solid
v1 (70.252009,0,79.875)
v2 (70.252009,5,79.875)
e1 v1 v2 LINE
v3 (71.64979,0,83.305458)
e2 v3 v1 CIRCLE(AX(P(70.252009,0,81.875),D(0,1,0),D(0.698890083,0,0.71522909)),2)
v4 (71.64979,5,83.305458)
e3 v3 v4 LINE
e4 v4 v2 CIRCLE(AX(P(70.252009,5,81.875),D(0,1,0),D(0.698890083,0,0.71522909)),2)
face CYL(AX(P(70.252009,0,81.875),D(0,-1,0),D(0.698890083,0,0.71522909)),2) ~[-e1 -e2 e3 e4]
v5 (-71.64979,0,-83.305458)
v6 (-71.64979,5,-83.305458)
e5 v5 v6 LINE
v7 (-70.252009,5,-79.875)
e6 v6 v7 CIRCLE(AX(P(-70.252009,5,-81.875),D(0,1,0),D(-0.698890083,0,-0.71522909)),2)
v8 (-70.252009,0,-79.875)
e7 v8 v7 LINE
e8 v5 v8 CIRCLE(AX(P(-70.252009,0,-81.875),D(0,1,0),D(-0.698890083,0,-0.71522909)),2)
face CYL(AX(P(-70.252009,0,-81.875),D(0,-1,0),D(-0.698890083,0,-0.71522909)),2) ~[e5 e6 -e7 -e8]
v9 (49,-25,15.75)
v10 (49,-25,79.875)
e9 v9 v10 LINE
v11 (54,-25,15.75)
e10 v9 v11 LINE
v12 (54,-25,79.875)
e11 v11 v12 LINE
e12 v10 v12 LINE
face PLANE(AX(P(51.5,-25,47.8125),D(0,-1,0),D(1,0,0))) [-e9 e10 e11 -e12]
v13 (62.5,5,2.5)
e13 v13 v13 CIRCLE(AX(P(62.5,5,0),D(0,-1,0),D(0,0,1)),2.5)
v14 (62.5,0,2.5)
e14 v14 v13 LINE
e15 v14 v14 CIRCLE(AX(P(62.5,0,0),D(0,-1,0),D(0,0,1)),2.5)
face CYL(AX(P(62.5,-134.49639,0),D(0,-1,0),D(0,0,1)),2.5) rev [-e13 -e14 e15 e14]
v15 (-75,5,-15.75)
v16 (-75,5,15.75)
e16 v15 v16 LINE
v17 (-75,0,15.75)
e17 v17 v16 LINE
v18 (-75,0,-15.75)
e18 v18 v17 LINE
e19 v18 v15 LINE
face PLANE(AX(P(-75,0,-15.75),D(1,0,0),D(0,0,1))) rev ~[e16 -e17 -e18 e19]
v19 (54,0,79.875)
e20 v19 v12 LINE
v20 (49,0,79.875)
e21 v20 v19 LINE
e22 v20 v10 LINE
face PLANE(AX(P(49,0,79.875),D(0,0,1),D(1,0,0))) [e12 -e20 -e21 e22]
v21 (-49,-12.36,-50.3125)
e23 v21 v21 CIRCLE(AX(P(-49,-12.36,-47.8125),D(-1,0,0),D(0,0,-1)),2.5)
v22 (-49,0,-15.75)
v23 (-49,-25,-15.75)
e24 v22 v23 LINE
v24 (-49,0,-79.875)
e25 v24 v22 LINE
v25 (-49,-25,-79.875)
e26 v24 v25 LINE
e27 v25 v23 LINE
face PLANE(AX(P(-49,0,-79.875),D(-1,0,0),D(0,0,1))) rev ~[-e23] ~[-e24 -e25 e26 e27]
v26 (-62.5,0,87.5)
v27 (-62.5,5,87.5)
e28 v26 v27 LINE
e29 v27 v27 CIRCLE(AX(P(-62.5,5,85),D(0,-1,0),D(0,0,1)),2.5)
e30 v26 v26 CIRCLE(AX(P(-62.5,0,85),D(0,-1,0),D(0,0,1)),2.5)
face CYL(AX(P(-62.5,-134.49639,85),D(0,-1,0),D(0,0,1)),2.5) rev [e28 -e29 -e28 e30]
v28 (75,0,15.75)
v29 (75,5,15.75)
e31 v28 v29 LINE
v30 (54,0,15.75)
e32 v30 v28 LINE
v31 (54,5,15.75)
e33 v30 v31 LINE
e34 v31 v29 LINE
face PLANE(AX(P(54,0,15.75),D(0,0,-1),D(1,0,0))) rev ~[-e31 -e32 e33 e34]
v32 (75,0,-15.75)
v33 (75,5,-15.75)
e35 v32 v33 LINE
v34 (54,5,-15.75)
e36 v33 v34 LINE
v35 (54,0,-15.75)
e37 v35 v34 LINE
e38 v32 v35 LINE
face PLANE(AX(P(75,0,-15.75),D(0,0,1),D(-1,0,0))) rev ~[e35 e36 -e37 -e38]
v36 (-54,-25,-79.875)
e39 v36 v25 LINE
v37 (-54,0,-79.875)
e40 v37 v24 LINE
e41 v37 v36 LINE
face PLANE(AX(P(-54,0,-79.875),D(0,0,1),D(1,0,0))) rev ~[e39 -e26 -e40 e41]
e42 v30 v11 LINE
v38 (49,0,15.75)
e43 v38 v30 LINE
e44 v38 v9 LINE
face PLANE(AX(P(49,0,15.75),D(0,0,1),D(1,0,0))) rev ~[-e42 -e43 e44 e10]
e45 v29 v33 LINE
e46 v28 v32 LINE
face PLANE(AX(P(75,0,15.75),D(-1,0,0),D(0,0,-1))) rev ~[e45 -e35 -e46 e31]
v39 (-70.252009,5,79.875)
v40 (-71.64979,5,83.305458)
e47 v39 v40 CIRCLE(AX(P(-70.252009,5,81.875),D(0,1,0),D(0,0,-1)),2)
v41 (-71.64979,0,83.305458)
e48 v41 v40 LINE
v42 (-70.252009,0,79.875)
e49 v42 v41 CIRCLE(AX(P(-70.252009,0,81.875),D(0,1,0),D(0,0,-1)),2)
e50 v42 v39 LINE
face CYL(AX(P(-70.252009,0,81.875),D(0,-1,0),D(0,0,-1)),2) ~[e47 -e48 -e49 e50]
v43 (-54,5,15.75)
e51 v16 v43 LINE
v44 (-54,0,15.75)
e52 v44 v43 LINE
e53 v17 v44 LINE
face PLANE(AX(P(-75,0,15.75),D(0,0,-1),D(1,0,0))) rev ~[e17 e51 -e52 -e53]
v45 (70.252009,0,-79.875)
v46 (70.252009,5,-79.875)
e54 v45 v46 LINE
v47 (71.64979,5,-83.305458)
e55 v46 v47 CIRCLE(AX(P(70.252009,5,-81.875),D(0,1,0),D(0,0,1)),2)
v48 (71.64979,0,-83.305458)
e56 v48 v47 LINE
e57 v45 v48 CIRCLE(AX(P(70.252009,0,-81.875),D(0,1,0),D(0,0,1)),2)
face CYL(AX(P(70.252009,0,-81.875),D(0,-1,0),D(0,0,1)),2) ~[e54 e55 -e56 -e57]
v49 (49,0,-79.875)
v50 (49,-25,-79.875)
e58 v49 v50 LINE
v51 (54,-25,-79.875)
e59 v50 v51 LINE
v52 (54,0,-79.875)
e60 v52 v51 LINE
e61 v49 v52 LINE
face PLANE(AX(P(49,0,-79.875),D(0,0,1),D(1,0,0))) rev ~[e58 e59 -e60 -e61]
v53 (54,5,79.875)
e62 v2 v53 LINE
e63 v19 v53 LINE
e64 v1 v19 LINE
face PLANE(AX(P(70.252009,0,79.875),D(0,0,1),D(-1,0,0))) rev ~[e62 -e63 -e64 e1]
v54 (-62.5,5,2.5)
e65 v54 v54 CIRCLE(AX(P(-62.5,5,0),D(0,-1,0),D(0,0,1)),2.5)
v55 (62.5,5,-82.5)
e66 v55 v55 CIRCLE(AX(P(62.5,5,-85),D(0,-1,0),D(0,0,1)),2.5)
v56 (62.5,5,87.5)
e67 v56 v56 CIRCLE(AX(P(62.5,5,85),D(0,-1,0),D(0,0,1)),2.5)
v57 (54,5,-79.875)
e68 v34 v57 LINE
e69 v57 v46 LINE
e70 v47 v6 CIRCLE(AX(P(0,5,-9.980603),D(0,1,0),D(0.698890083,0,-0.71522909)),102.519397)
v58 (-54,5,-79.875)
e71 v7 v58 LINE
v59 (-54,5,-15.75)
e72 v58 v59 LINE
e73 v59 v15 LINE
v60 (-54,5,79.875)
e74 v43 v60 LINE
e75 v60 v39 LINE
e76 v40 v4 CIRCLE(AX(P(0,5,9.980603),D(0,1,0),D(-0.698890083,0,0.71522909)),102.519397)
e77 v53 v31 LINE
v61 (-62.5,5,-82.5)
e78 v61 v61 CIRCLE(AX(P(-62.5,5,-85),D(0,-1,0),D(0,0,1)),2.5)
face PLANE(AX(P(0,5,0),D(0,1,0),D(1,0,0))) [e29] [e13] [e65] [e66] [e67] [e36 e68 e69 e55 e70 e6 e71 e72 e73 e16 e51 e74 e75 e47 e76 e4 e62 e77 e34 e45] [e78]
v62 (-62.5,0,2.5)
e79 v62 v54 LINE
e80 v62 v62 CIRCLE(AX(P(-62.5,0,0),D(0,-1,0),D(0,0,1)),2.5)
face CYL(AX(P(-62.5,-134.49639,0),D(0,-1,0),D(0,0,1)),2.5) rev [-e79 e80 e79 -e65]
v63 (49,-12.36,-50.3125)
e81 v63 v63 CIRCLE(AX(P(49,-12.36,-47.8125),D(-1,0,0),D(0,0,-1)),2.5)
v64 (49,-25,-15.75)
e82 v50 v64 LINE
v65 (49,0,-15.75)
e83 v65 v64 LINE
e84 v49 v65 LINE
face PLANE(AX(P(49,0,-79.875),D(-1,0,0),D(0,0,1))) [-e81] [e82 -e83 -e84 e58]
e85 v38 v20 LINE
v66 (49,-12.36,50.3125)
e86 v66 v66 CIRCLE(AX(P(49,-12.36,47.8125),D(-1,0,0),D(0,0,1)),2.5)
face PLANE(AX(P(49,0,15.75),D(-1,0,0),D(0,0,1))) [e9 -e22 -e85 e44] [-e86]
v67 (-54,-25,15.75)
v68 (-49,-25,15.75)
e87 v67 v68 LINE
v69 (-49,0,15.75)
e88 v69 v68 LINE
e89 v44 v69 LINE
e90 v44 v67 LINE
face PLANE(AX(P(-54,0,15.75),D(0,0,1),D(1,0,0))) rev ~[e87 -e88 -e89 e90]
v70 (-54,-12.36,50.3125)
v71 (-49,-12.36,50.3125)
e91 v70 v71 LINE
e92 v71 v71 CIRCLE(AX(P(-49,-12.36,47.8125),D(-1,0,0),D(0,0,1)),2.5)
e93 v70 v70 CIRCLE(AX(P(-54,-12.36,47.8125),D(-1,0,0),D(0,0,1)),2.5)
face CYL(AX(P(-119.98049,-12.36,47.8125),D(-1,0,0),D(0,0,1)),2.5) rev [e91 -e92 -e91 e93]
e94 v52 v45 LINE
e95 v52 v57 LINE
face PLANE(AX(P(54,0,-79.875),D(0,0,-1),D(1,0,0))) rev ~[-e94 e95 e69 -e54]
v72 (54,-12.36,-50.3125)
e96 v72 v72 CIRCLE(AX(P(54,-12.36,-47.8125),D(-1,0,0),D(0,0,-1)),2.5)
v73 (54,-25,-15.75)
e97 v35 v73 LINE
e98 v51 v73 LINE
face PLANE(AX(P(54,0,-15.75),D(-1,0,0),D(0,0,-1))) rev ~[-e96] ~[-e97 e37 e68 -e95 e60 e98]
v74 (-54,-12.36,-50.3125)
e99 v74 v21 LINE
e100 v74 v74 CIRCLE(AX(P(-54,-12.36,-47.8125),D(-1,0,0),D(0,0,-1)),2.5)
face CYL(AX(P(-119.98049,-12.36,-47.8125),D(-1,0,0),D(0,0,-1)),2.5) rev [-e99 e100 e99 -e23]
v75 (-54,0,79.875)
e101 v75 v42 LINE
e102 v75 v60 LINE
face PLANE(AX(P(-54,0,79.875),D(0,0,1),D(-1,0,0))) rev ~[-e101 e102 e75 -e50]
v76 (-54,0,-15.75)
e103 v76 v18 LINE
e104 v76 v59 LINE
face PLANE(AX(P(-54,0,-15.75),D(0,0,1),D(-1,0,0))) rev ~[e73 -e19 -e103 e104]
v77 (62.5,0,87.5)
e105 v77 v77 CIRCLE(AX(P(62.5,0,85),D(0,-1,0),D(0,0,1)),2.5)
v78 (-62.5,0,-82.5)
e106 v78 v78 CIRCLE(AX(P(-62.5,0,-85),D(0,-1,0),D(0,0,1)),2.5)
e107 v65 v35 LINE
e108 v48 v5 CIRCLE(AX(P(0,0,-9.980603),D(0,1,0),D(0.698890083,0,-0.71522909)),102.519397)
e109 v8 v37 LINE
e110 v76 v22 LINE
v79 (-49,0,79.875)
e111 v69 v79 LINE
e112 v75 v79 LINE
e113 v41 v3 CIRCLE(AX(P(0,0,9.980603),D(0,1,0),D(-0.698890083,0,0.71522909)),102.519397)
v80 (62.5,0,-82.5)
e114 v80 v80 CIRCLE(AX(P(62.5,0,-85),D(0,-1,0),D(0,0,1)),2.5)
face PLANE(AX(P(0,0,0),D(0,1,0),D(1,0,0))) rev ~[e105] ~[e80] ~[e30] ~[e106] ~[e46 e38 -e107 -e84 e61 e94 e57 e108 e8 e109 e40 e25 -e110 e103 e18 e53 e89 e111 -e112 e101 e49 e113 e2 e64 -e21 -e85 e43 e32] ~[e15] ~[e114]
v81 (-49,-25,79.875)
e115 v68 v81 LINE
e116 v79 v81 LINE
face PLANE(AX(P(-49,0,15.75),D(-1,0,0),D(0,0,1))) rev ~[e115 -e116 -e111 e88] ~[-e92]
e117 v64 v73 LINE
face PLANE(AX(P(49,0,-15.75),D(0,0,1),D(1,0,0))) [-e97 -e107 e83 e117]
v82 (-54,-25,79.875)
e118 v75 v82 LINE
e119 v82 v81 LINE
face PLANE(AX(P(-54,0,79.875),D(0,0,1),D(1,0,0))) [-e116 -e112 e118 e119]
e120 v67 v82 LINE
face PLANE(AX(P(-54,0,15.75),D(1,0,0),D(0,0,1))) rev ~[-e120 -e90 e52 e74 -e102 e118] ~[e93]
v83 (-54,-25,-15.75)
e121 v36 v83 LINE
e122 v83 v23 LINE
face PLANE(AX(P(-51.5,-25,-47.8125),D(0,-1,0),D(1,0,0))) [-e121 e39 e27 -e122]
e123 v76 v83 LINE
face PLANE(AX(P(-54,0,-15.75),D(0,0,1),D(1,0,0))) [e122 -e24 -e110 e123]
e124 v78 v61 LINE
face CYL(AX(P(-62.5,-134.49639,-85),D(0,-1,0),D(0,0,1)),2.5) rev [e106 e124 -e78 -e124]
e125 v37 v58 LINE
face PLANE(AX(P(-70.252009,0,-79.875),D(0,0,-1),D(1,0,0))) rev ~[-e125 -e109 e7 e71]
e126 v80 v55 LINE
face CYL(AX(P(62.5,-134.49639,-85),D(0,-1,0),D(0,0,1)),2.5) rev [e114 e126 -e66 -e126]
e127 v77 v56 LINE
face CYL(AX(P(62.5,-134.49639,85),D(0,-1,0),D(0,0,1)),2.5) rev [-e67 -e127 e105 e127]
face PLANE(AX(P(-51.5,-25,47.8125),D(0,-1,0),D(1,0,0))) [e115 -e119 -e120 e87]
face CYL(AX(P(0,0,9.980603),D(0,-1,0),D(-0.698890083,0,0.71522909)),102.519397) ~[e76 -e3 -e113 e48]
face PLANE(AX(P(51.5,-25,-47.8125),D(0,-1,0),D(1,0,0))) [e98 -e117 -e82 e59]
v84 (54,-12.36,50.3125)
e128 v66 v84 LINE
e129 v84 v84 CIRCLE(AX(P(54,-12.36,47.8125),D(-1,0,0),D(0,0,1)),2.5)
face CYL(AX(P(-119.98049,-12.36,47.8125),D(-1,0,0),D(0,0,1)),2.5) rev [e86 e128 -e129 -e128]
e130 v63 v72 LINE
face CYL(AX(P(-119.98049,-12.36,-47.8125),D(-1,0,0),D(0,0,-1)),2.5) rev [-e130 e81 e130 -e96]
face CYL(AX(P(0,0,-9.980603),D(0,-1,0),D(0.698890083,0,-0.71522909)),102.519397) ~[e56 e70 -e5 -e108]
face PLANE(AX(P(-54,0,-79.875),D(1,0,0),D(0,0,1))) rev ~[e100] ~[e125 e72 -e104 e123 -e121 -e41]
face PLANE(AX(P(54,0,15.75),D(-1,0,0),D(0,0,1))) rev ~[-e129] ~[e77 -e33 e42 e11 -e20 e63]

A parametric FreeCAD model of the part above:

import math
import FreeCAD as App
import Part
import Sketcher
from FreeCAD import Vector
Q = App.Units.Quantity

doc = App.newDocument("Part")
body = doc.addObject("PartDesign::Body", "Body")

sketch1 = body.newObject("Sketcher::SketchObject", "Sketch")
sketch1.AttachmentSupport = (doc.getObject("XZ_Plane"), [""])
sketch1.MapMode = "FlatFace"
sketch1.addGeometry([
    Part.LineSegment(Vector(-75, -15.8, 0), Vector(-75, 15.8, 0)),
    Part.LineSegment(Vector(-75, 15.8, 0), Vector(-54, 15.8, 0)),
    Part.LineSegment(Vector(-54, 15.8, 0), Vector(-54, 79.9, 0)),
    Part.LineSegment(Vector(-54, 79.9, 0), Vector(-70.3, 79.9, 0)),
    Part.ArcOfCircle(Part.Circle(Vector(-70.3, 81.9, 0), Vector(0, 0, 1), 2), math.radians(134), math.radians(270)),
    Part.ArcOfCircle(Part.Circle(Vector(0, 10, 0), Vector(0, 0, 1), 102.5), math.radians(46), math.radians(134)),
    Part.ArcOfCircle(Part.Circle(Vector(70.3, 81.9, 0), Vector(0, 0, 1), 2), math.radians(-90), math.radians(46)),
    Part.LineSegment(Vector(70.3, 79.9, 0), Vector(54, 79.9, 0)),
    Part.LineSegment(Vector(54, 79.9, 0), Vector(54, 15.8, 0)),
    Part.LineSegment(Vector(54, 15.8, 0), Vector(75, 15.8, 0)),
    Part.LineSegment(Vector(75, 15.8, 0), Vector(75, -15.8, 0)),
    Part.LineSegment(Vector(75, -15.8, 0), Vector(54, -15.8, 0)),
    Part.LineSegment(Vector(54, -15.8, 0), Vector(54, -79.9, 0)),
    Part.LineSegment(Vector(54, -79.9, 0), Vector(70.3, -79.9, 0)),
    Part.ArcOfCircle(Part.Circle(Vector(70.3, -81.9, 0), Vector(0, 0, 1), 2), math.radians(-46), math.radians(90)),
    Part.ArcOfCircle(Part.Circle(Vector(0, -10, 0), Vector(0, 0, 1), 102.5), math.radians(-134), math.radians(-46)),
    Part.ArcOfCircle(Part.Circle(Vector(-70.3, -81.9, 0), Vector(0, 0, 1), 2), math.radians(90), math.radians(226)),
    Part.LineSegment(Vector(-70.3, -79.9, 0), Vector(-54, -79.9, 0)),
    Part.LineSegment(Vector(-54, -79.9, 0), Vector(-54, -15.8, 0)),
    Part.LineSegment(Vector(-54, -15.8, 0), Vector(-75, -15.8, 0)),
], False)
sketch1.addConstraint([
    Sketcher.Constraint("Coincident", 0, 2, 1, 1),
    Sketcher.Constraint("Coincident", 1, 2, 2, 1),
    Sketcher.Constraint("Coincident", 2, 2, 3, 1),
    Sketcher.Constraint("Tangent", 3, 2, 4, 2),
    Sketcher.Constraint("Tangent", 4, 1, 5, 2),
    Sketcher.Constraint("Tangent", 5, 1, 6, 2),
    Sketcher.Constraint("Tangent", 6, 1, 7, 1),
    Sketcher.Constraint("Coincident", 7, 2, 8, 1),
    Sketcher.Constraint("Coincident", 8, 2, 9, 1),
    Sketcher.Constraint("Coincident", 9, 2, 10, 1),
    Sketcher.Constraint("Coincident", 10, 2, 11, 1),
    Sketcher.Constraint("Coincident", 11, 2, 12, 1),
    Sketcher.Constraint("Coincident", 12, 2, 13, 1),
    Sketcher.Constraint("Tangent", 13, 2, 14, 2),
    Sketcher.Constraint("Tangent", 14, 1, 15, 2),
    Sketcher.Constraint("Tangent", 15, 1, 16, 2),
    Sketcher.Constraint("Tangent", 16, 1, 17, 1),
    Sketcher.Constraint("Coincident", 17, 2, 18, 1),
    Sketcher.Constraint("Coincident", 18, 2, 19, 1),
    Sketcher.Constraint("Coincident", 19, 2, 0, 1),
    Sketcher.Constraint("Vertical", 0),
    Sketcher.Constraint("Horizontal", 1),
    Sketcher.Constraint("Vertical", 2),
    Sketcher.Constraint("Horizontal", 3),
    Sketcher.Constraint("Horizontal", 7),
    Sketcher.Constraint("Vertical", 8),
    Sketcher.Constraint("Horizontal", 9),
    Sketcher.Constraint("Vertical", 10),
    Sketcher.Constraint("Horizontal", 11),
    Sketcher.Constraint("Vertical", 12),
    Sketcher.Constraint("Horizontal", 13),
    Sketcher.Constraint("Horizontal", 17),
    Sketcher.Constraint("Vertical", 18),
    Sketcher.Constraint("Horizontal", 19),
    Sketcher.Constraint("Equal", 4, 6),
    Sketcher.Constraint("Equal", 6, 14),
    Sketcher.Constraint("Equal", 5, 15),
    Sketcher.Constraint("Equal", 14, 16),
    Sketcher.Constraint("Symmetric", 4, 3, 14, 3, -1, 1),
    Sketcher.Constraint("Symmetric", 6, 3, 16, 3, -1, 1),
    Sketcher.Constraint("Symmetric", 0, 2, 10, 2, -1, 1),
    Sketcher.Constraint("Symmetric", 8, 2, 18, 2, -1, 1),
    Sketcher.Constraint("Symmetric", 4, 3, 6, 3, -2),
    Sketcher.Constraint("Symmetric", 1, 2, 8, 2, -2),
    Sketcher.Constraint("Vertical", 8, 2, 11, 2),
    Sketcher.Constraint("Radius", 4, Q("2 mm")),
    Sketcher.Constraint("DistanceX", 1, 1, 1, 2, Q("21 mm")),
    Sketcher.Constraint("DistanceY", 0, 1, 0, 2, Q("31.5 mm")),
    Sketcher.Constraint("DistanceX", 0, 2, -1, 1, Q("75 mm")),
    Sketcher.Constraint("DistanceY", 2, 1, 2, 2, Q("64.125 mm")),
    Sketcher.Constraint("Radius", 5, Q("102.519397 mm")),
    Sketcher.Constraint("DistanceX", 3, 2, 3, 1, Q("16.252009 mm")),
])
pad1 = body.newObject("PartDesign::Pad", "Pad")
pad1.Profile = sketch1
pad1.Length = 5
pad1.Reversed = True

sketch2 = body.newObject("Sketcher::SketchObject", "Sketch001")
sketch2.AttachmentSupport = (doc.getObject("XZ_Plane"), [""])
sketch2.MapMode = "FlatFace"
sketch2.addGeometry([
    Part.LineSegment(Vector(49, 80, 0), Vector(49, 16, 0)),
    Part.LineSegment(Vector(49, 16, 0), Vector(54, 16, 0)),
    Part.LineSegment(Vector(54, 16, 0), Vector(54, 80, 0)),
    Part.LineSegment(Vector(54, 80, 0), Vector(49, 80, 0)),
    Part.LineSegment(Vector(-54, 80, 0), Vector(-54, 16, 0)),
    Part.LineSegment(Vector(-54, 16, 0), Vector(-49, 16, 0)),
    Part.LineSegment(Vector(-49, 16, 0), Vector(-49, 80, 0)),
    Part.LineSegment(Vector(-49, 80, 0), Vector(-54, 80, 0)),
    Part.LineSegment(Vector(-54, -16, 0), Vector(-54, -80, 0)),
    Part.LineSegment(Vector(-54, -80, 0), Vector(-49, -80, 0)),
    Part.LineSegment(Vector(-49, -80, 0), Vector(-49, -16, 0)),
    Part.LineSegment(Vector(-49, -16, 0), Vector(-54, -16, 0)),
    Part.LineSegment(Vector(49, -16, 0), Vector(49, -80, 0)),
    Part.LineSegment(Vector(49, -80, 0), Vector(54, -80, 0)),
    Part.LineSegment(Vector(54, -80, 0), Vector(54, -16, 0)),
    Part.LineSegment(Vector(54, -16, 0), Vector(49, -16, 0)),
], False)
sketch2.addConstraint([
    Sketcher.Constraint("Coincident", 0, 2, 1, 1),
    Sketcher.Constraint("Coincident", 1, 2, 2, 1),
    Sketcher.Constraint("Coincident", 2, 2, 3, 1),
    Sketcher.Constraint("Coincident", 3, 2, 0, 1),
    Sketcher.Constraint("Coincident", 4, 2, 5, 1),
    Sketcher.Constraint("Coincident", 5, 2, 6, 1),
    Sketcher.Constraint("Coincident", 6, 2, 7, 1),
    Sketcher.Constraint("Coincident", 7, 2, 4, 1),
    Sketcher.Constraint("Coincident", 8, 2, 9, 1),
    Sketcher.Constraint("Coincident", 9, 2, 10, 1),
    Sketcher.Constraint("Coincident", 10, 2, 11, 1),
    Sketcher.Constraint("Coincident", 11, 2, 8, 1),
    Sketcher.Constraint("Coincident", 12, 2, 13, 1),
    Sketcher.Constraint("Coincident", 13, 2, 14, 1),
    Sketcher.Constraint("Coincident", 14, 2, 15, 1),
    Sketcher.Constraint("Coincident", 15, 2, 12, 1),
    Sketcher.Constraint("Vertical", 0),
    Sketcher.Constraint("Horizontal", 1),
    Sketcher.Constraint("Vertical", 2),
    Sketcher.Constraint("Horizontal", 3),
    Sketcher.Constraint("Vertical", 4),
    Sketcher.Constraint("Horizontal", 5),
    Sketcher.Constraint("Vertical", 6),
    Sketcher.Constraint("Horizontal", 7),
    Sketcher.Constraint("Vertical", 8),
    Sketcher.Constraint("Horizontal", 9),
    Sketcher.Constraint("Vertical", 10),
    Sketcher.Constraint("Horizontal", 11),
    Sketcher.Constraint("Vertical", 12),
    Sketcher.Constraint("Horizontal", 13),
    Sketcher.Constraint("Vertical", 14),
    Sketcher.Constraint("Horizontal", 15),
    Sketcher.Constraint("Symmetric", 2, 2, 8, 2, -1, 1),
    Sketcher.Constraint("Symmetric", 0, 2, 10, 2, -1, 1),
    Sketcher.Constraint("Symmetric", 6, 2, 12, 2, -1, 1),
    Sketcher.Constraint("Symmetric", 4, 2, 14, 2, -1, 1),
    Sketcher.Constraint("Symmetric", 1, 2, 4, 2, -2),
    Sketcher.Constraint("Symmetric", 3, 2, 6, 2, -2),
    Sketcher.Constraint("DistanceX", 1, 1, 1, 2, Q("5 mm")),
    Sketcher.Constraint("DistanceX", -1, 1, 0, 2, Q("49 mm")),
    Sketcher.Constraint("DistanceY", 10, 2, 5, 2, Q("31.5 mm")),
    Sketcher.Constraint("DistanceY", 0, 2, 0, 1, Q("64.125 mm")),
])
pad2 = body.newObject("PartDesign::Pad", "Pad001")
pad2.Profile = sketch2
pad2.Length = 25

sketch3 = body.newObject("Sketcher::SketchObject", "Sketch002")
sketch3.AttachmentSupport = (doc.getObject("YZ_Plane"), [""])
sketch3.MapMode = "FlatFace"
sketch3.AttachmentOffset = App.Placement(Vector(0, 0, 54), App.Rotation())
sketch3.addGeometry([
    Part.Circle(Vector(-12.4, 47.8, 0), Vector(0, 0, 1), 2.5),
    Part.Circle(Vector(-12.4, -47.8, 0), Vector(0, 0, 1), 2.5),
], False)
sketch3.addConstraint([
    Sketcher.Constraint("Equal", 0, 1),
    Sketcher.Constraint("Symmetric", 0, 3, 1, 3, -1),
    Sketcher.Constraint("Diameter", 0, Q("5 mm")),
    Sketcher.Constraint("DistanceX", 0, 3, -1, 1, Q("12.36 mm")),
    Sketcher.Constraint("DistanceY", 1, 3, 0, 3, Q("95.625 mm")),
])
pocket1 = body.newObject("PartDesign::Pocket", "Pocket")
pocket1.Profile = sketch3
pocket1.Type = "ThroughAll"
pocket1.Midplane = True

sketch4 = body.newObject("Sketcher::SketchObject", "Sketch003")
sketch4.AttachmentSupport = (doc.getObject("XZ_Plane"), [""])
sketch4.MapMode = "FlatFace"
sketch4.AttachmentOffset = App.Placement(Vector(0, 0, -5), App.Rotation())
sketch4.addGeometry([
    Part.Circle(Vector(-62.5, -85, 0), Vector(0, 0, 1), 2.5),
    Part.Circle(Vector(62.5, -85, 0), Vector(0, 0, 1), 2.5),
    Part.Circle(Vector(62.5, 0, 0), Vector(0, 0, 1), 2.5),
    Part.Circle(Vector(62.5, 85, 0), Vector(0, 0, 1), 2.5),
    Part.Circle(Vector(-62.5, 0, 0), Vector(0, 0, 1), 2.5),
    Part.Circle(Vector(-62.5, 85, 0), Vector(0, 0, 1), 2.5),
], False)
sketch4.addConstraint([
    Sketcher.Constraint("Equal", 0, 1),
    Sketcher.Constraint("Equal", 1, 2),
    Sketcher.Constraint("Equal", 2, 3),
    Sketcher.Constraint("Equal", 3, 4),
    Sketcher.Constraint("Equal", 4, 5),
    Sketcher.Constraint("Symmetric", 0, 3, 3, 3, -1, 1),
    Sketcher.Constraint("Symmetric", 2, 3, 4, 3, -1, 1),
    Sketcher.Constraint("Symmetric", 1, 3, 5, 3, -1, 1),
    Sketcher.Constraint("Symmetric", 0, 3, 1, 3, -2),
    Sketcher.Constraint("PointOnObject", 2, 3, -1),
    Sketcher.Constraint("Vertical", 1, 3, 2, 3),
    Sketcher.Constraint("Diameter", 0, Q("5 mm")),
    Sketcher.Constraint("DistanceY", 0, 3, -1, 1, Q("85 mm")),
    Sketcher.Constraint("DistanceX", 0, 3, 1, 3, Q("125 mm")),
])
pocket2 = body.newObject("PartDesign::Pocket", "Pocket001")
pocket2.Profile = sketch4
pocket2.Type = "ThroughAll"
pocket2.Midplane = True

doc.recompute()
